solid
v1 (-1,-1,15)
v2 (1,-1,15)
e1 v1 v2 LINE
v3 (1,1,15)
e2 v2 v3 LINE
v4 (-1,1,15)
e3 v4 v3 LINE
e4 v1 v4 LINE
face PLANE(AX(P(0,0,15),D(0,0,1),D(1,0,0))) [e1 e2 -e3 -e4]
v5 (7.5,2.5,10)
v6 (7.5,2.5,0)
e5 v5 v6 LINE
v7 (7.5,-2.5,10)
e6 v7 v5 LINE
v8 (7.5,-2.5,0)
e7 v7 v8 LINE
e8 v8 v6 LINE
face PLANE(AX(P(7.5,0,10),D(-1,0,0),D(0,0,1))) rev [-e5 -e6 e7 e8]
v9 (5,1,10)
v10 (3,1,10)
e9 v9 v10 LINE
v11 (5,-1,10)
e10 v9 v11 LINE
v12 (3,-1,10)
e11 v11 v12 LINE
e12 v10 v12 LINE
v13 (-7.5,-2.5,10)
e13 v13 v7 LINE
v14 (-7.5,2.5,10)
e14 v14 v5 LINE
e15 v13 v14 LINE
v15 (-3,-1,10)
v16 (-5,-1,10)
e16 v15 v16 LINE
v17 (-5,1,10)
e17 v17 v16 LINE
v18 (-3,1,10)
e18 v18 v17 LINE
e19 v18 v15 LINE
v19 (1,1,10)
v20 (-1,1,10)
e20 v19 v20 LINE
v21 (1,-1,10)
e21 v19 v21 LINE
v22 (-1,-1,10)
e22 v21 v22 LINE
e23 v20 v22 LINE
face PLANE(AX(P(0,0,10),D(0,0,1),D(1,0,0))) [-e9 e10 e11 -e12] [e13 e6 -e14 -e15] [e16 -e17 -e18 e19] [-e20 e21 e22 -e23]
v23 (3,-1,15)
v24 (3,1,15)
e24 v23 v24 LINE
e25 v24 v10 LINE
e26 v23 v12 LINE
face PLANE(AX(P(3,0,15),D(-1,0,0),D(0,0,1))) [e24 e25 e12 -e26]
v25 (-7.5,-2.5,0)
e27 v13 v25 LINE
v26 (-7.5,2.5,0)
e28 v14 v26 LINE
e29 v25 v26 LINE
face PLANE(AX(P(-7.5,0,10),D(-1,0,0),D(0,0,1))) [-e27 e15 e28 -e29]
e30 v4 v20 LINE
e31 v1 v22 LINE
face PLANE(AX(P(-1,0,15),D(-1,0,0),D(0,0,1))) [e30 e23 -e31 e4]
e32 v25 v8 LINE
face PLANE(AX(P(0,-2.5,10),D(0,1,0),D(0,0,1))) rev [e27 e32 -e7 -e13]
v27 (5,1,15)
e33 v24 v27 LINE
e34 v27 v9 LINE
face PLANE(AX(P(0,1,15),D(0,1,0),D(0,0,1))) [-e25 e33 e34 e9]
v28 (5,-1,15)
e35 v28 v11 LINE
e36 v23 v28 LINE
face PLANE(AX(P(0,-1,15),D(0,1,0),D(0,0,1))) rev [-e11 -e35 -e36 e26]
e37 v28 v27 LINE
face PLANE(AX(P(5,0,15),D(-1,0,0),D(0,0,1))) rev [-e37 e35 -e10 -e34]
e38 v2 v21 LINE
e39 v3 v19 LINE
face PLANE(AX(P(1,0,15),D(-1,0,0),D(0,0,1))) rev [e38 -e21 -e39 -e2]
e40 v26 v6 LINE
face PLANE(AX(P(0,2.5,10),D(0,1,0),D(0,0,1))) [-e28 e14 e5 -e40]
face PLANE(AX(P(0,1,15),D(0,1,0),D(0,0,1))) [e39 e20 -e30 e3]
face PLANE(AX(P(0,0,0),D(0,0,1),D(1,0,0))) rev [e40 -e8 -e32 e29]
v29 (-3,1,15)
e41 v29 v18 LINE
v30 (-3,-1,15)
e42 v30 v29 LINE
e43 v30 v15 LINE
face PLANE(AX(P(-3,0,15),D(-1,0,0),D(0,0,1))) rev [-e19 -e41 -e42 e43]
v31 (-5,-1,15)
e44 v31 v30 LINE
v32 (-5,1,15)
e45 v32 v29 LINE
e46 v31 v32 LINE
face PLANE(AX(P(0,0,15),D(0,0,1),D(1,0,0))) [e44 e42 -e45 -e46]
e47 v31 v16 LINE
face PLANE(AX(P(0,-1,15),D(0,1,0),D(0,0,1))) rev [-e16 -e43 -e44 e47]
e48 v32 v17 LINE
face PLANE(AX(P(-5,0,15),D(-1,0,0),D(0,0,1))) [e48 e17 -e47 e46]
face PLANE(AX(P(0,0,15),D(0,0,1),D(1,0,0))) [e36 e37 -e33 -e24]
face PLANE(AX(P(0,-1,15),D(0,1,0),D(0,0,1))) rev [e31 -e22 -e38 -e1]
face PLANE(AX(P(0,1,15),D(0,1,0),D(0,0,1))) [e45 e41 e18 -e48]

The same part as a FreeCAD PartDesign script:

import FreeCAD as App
import Part
import Sketcher


def add_polygon(sketch, points):
    """Adds a closed chain of lines whose ends are joined by coincident constraints."""
    first, n = sketch.GeometryCount, len(points)
    for a, b in zip(points, points[1:] + points[:1]):
        sketch.addGeometry(Part.LineSegment(App.Vector(*a, 0), App.Vector(*b, 0)), False)
    for i in range(n):
        sketch.addConstraint(Sketcher.Constraint("Coincident", first + i, 2, first + (i + 1) % n, 1))

doc = App.newDocument("Part")
params = doc.addObject("Spreadsheet::Sheet", "Params")
for row, (alias, value) in enumerate([
    ("sketch1_width", "15 mm"),
    ("sketch1_height", "5 mm"),
    ("pad1_length", "10 mm"),
    ("sketch2_width", "2 mm"),
    ("pad2_length", "15 mm"),
], start=1):
    params.set(f"A{row}", alias)
    params.set(f"B{row}", "=" + value)
    params.setAlias(f"B{row}", alias)

body = doc.addObject("PartDesign::Body", "Body")

# Sketch on XY plane
sketch1 = doc.addObject("Sketcher::SketchObject", "Sketch")
body.addObject(sketch1)
sketch1.AttachmentSupport = (doc.XY_Plane, [""])
sketch1.MapMode = "FlatFace"
add_polygon(sketch1, [(-7.5, 2.5), (-7.5, -2.5), (7.5, -2.5), (7.5, 2.5)])  # lines 0-3
sketch1.addConstraint([
    Sketcher.Constraint("Vertical", 0),
    Sketcher.Constraint("Horizontal", 1),
    Sketcher.Constraint("Vertical", 2),
    Sketcher.Constraint("Horizontal", 3),
    Sketcher.Constraint("Symmetric", 0, 2, 2, 2, -1, 1),
    Sketcher.Constraint("DistanceX", 1, 1, 1, 2, 15.0),
    Sketcher.Constraint("DistanceY", 0, 2, 0, 1, 5.0),
])
sketch1.setExpression("Constraints[9]", "Params.sketch1_width")
sketch1.setExpression("Constraints[10]", "Params.sketch1_height")
pad1 = doc.addObject("PartDesign::Pad", "Pad")
body.addObject(pad1)
pad1.Profile = sketch1
pad1.setExpression("Length", "Params.pad1_length")

# Sketch on XY plane
sketch2 = doc.addObject("Sketcher::SketchObject", "Sketch001")
body.addObject(sketch2)
sketch2.AttachmentSupport = (doc.XY_Plane, [""])
sketch2.MapMode = "FlatFace"
add_polygon(sketch2, [(-5, 1), (-5, -1), (-3, -1), (-3, 1)])  # lines 0-3
add_polygon(sketch2, [(-1, 1), (-1, -1), (1, -1), (1, 1)])  # lines 4-7
add_polygon(sketch2, [(3, 1), (3, -1), (5, -1), (5, 1)])  # lines 8-11
sketch2.addConstraint([
    Sketcher.Constraint("Vertical", 0),
    Sketcher.Constraint("Horizontal", 1),
    Sketcher.Constraint("Vertical", 2),
    Sketcher.Constraint("Horizontal", 3),
    Sketcher.Constraint("Vertical", 4),
    Sketcher.Constraint("Horizontal", 5),
    Sketcher.Constraint("Vertical", 6),
    Sketcher.Constraint("Horizontal", 7),
    Sketcher.Constraint("Vertical", 8),
    Sketcher.Constraint("Horizontal", 9),
    Sketcher.Constraint("Vertical", 10),
    Sketcher.Constraint("Horizontal", 11),
    Sketcher.Constraint("Symmetric", 4, 2, 6, 2, -1, 1),
    Sketcher.Constraint("Symmetric", 2, 2, 8, 2, -1, 1),
    Sketcher.Constraint("Symmetric", 0, 2, 10, 2, -1, 1),
    Sketcher.Constraint("Horizontal", 1, 2, 4, 2),
    Sketcher.Constraint("Horizontal", 3, 2, 6, 2),
    Sketcher.Constraint("Equal", 3, 5),
    Sketcher.Constraint("Equal", 11, 0),
    Sketcher.Constraint("DistanceX", 1, 1, 1, 2, 2.0),
    Sketcher.Constraint("DistanceX", 0, 2, -1, 1, 5.0),
])
sketch2.setExpression("Constraints[31]", "Params.sketch2_width")
pad2 = doc.addObject("PartDesign::Pad", "Pad001")
body.addObject(pad2)
pad2.Profile = sketch2
pad2.setExpression("Length", "Params.pad2_length")

doc.recompute()
